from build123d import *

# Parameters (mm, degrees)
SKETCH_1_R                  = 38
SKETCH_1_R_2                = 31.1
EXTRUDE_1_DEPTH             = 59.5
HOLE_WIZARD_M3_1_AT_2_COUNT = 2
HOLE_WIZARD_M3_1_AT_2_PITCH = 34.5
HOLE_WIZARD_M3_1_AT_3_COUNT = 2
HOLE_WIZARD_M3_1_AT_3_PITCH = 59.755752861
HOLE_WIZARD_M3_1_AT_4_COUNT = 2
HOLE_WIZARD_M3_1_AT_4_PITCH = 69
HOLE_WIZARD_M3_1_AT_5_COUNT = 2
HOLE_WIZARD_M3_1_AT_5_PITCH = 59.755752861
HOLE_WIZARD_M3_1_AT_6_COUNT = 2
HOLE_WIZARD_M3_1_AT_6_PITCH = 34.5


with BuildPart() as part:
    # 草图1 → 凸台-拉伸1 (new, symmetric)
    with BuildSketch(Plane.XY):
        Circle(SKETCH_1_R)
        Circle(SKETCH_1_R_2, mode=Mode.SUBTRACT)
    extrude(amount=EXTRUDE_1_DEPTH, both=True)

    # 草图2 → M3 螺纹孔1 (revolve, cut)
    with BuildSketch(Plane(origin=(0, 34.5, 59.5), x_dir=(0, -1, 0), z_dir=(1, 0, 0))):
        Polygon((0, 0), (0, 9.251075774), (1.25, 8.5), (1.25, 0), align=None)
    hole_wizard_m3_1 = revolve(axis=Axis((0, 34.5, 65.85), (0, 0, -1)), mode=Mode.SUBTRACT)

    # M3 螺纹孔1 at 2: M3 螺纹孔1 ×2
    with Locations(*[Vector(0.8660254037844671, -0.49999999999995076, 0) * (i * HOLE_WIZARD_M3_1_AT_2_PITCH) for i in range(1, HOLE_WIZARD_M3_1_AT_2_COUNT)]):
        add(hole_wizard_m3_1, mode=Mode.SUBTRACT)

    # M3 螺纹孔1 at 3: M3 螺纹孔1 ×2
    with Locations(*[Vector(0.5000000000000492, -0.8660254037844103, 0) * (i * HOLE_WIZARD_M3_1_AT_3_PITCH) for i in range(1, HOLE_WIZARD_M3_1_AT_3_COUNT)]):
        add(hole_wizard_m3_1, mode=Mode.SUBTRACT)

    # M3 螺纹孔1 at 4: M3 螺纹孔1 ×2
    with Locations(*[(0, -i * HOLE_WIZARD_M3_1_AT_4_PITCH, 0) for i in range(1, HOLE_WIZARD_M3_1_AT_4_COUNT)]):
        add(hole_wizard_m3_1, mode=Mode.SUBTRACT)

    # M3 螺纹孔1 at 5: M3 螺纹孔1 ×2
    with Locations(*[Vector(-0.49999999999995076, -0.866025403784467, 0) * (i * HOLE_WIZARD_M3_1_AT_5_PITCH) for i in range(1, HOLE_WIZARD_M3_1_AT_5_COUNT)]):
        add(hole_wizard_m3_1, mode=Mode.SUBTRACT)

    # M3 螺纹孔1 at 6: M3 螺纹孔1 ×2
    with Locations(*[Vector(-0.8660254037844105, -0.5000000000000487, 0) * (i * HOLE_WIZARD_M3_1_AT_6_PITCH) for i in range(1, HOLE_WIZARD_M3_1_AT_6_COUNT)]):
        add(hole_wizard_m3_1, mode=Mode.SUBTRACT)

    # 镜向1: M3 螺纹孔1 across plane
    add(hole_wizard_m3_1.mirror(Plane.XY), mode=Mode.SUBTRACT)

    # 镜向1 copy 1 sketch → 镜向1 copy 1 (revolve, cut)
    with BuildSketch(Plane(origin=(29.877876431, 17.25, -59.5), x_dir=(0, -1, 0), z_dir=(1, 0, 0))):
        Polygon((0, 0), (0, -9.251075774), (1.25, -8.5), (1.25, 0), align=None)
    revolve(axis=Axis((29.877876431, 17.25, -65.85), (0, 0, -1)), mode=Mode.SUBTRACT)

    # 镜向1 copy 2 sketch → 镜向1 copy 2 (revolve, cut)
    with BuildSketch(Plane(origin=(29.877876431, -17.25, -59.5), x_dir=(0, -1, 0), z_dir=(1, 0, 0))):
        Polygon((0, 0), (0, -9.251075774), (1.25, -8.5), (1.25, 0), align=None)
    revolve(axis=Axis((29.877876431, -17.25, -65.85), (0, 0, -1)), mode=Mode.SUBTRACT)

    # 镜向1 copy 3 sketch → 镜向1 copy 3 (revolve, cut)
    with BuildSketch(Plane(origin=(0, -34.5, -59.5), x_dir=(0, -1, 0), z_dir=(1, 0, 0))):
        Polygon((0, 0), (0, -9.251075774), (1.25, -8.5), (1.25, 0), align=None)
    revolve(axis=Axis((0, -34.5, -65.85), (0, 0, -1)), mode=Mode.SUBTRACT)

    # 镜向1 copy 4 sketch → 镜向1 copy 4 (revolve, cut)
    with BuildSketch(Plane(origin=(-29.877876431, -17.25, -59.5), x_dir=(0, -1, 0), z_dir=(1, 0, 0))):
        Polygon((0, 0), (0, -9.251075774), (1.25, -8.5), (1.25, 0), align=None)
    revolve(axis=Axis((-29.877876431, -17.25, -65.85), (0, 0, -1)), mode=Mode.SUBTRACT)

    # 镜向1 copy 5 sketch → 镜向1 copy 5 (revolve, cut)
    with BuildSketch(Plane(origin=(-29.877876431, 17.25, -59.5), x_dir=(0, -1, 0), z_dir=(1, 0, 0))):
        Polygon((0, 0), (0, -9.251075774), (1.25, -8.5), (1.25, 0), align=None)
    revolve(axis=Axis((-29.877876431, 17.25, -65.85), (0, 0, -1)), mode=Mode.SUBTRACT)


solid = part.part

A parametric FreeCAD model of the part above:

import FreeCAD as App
import Part
import Sketcher

V = App.Vector
Q = App.Units.Quantity


def add_polygon(sketch, points):
    """Adds a closed chain of lines whose ends are joined by coincident constraints."""
    first, n = sketch.GeometryCount, len(points)
    for a, b in zip(points, points[1:] + points[:1]):
        sketch.addGeometry(Part.LineSegment(App.Vector(*a, 0), App.Vector(*b, 0)), False)
    for i in range(n):
        sketch.addConstraint(Sketcher.Constraint("Coincident", first + i, 2, first + (i + 1) % n, 1))

doc = App.newDocument("Part")
body = doc.addObject("PartDesign::Body", "Body")

sketch1 = body.newObject("Sketcher::SketchObject", "Sketch")
sketch1.AttachmentSupport = (doc.getObject("XY_Plane"), [""])
sketch1.MapMode = "FlatFace"
sketch1.addGeometry([
    Part.Circle(V(0, 0, 0), V(0, 0, 1), 38),
    Part.Circle(V(0, 0, 0), V(0, 0, 1), 31),
], False)
sketch1.addConstraint([
    Sketcher.Constraint("Coincident", 0, 3, -1, 1),
    Sketcher.Constraint("Coincident", 1, 3, -1, 1),
    Sketcher.Constraint("Diameter", 0, Q("76 mm")),
    Sketcher.Constraint("Diameter", 1, Q("62.2 mm")),
])
pad1 = body.newObject("PartDesign::Pad", "Pad")
pad1.Profile = sketch1
pad1.Length = 119
pad1.Midplane = True

sketch2 = body.newObject("Sketcher::SketchObject", "Sketch001")
sketch2.AttachmentSupport = (doc.getObject("YZ_Plane"), [""])
sketch2.MapMode = "FlatFace"
add_polygon(sketch2, [(34.5, 50.2), (34.5, 59.5), (33.2, 59.5), (33.2, 51)])
sketch2.addGeometry(Part.LineSegment(V(34.5, 59.5, 0), V(34.5, 50.2, 0)), True)
sketch2.addConstraint([
    Sketcher.Constraint("Vertical", 0),
    Sketcher.Constraint("Horizontal", 1),
    Sketcher.Constraint("Vertical", 2),
    Sketcher.Constraint("Vertical", 4),
    Sketcher.Constraint("Coincident", 4, 1, 0, 2),
    Sketcher.Constraint("Equal", 0, 4),
    Sketcher.Constraint("Angle", 3, Q("-31 deg")),
    Sketcher.Constraint("DistanceY", 2, 2, 2, 1, Q("8.5 mm")),
    Sketcher.Constraint("DistanceY", -1, 1, 2, 2, Q("51 mm")),
    Sketcher.Constraint("DistanceX", 1, 2, 1, 1, Q("1.25 mm")),
    Sketcher.Constraint("DistanceX", -1, 1, 0, 2, Q("34.5 mm")),
])
groove = body.newObject("PartDesign::Groove", "Groove")
groove.Profile = sketch2
groove.ReferenceAxis = (sketch2, ["Axis0"])
groove.Angle = 360
doc.recompute()

datumline = body.newObject("PartDesign::Line", "DatumLine")
datumline.Placement = App.Placement(V(0, 0, 0), App.Rotation(V(0, 0, 1), V(0.866025404, -0.5, 0)))
linearpattern = body.newObject("PartDesign::LinearPattern", "LinearPattern")
linearpattern.Originals = [groove]
linearpattern.Direction = (datumline, [""])
linearpattern.Mode = "offset"
linearpattern.Offset = 34.5
linearpattern.Occurrences = 2
body.Tip = linearpattern
doc.recompute()

datumline2 = body.newObject("PartDesign::Line", "DatumLine001")
datumline2.Placement = App.Placement(V(0, 0, 0), App.Rotation(V(0, 0, 1), V(0.5, -0.866025404, 0)))
linearpattern2 = body.newObject("PartDesign::LinearPattern", "LinearPattern001")
linearpattern2.Originals = [groove]
linearpattern2.Direction = (datumline2, [""])
linearpattern2.Mode = "offset"
linearpattern2.Offset = 59.755753
linearpattern2.Occurrences = 2
body.Tip = linearpattern2
doc.recompute()

linearpattern3 = body.newObject("PartDesign::LinearPattern", "LinearPattern002")
linearpattern3.Originals = [groove]
linearpattern3.Direction = (doc.getObject("Y_Axis"), [""])
linearpattern3.Mode = "offset"
linearpattern3.Offset = 69
linearpattern3.Occurrences = 2
linearpattern3.Reversed = True
body.Tip = linearpattern3
doc.recompute()

datumline3 = body.newObject("PartDesign::Line", "DatumLine002")
datumline3.Placement = App.Placement(V(0, 0, 0), App.Rotation(V(0, 0, 1), V(-0.5, -0.866025404, 0)))
linearpattern4 = body.newObject("PartDesign::LinearPattern", "LinearPattern003")
linearpattern4.Originals = [groove]
linearpattern4.Direction = (datumline3, [""])
linearpattern4.Mode = "offset"
linearpattern4.Offset = 59.755753
linearpattern4.Occurrences = 2
body.Tip = linearpattern4
doc.recompute()

datumline4 = body.newObject("PartDesign::Line", "DatumLine003")
datumline4.Placement = App.Placement(V(0, 0, 0), App.Rotation(V(0, 0, 1), V(-0.866025404, -0.5, 0)))
linearpattern5 = body.newObject("PartDesign::LinearPattern", "LinearPattern004")
linearpattern5.Originals = [groove]
linearpattern5.Direction = (datumline4, [""])
linearpattern5.Mode = "offset"
linearpattern5.Offset = 34.5
linearpattern5.Occurrences = 2
body.Tip = linearpattern5
doc.recompute()

mirrored = body.newObject("PartDesign::Mirrored", "Mirrored")
mirrored.Originals = [groove]
mirrored.MirrorPlane = (doc.getObject("XY_Plane"), [""])
body.Tip = mirrored

sketch3 = body.newObject("Sketcher::SketchObject", "Sketch002")
sketch3.AttachmentSupport = (doc.getObject("YZ_Plane"), [""])
sketch3.MapMode = "FlatFace"
sketch3.AttachmentOffset = App.Placement(V(0, 0, 29.877876), App.Rotation())
add_polygon(sketch3, [(17.2, -59.5), (17.2, -50.2), (16, -51), (16, -59.5)])
sketch3.addGeometry(Part.LineSegment(V(17.2, -50.2, 0), V(17.2, -59.5, 0)), True)
sketch3.addConstraint([
    Sketcher.Constraint("Vertical", 0),
    Sketcher.Constraint("Vertical", 2),
    Sketcher.Constraint("Horizontal", 3),
    Sketcher.Constraint("Vertical", 4),
    Sketcher.Constraint("Coincident", 4, 1, 0, 2),
    Sketcher.Constraint("Horizontal", 2, 2, 4, 2),
    Sketcher.Constraint("Angle", 1, Q("-149 deg")),
    Sketcher.Constraint("DistanceY", 2, 2, 2, 1, Q("8.5 mm")),
    Sketcher.Constraint("DistanceX", -1, 1, 1, 2, Q("16 mm")),
    Sketcher.Constraint("DistanceY", 1, 2, -1, 1, Q("51 mm")),
    Sketcher.Constraint("DistanceX", 3, 1, 3, 2, Q("1.25 mm")),
])
groove2 = body.newObject("PartDesign::Groove", "Groove001")
groove2.Profile = sketch3
groove2.ReferenceAxis = (sketch3, ["Axis0"])
groove2.Angle = 360

sketch4 = body.newObject("Sketcher::SketchObject", "Sketch003")
sketch4.AttachmentSupport = (doc.getObject("YZ_Plane"), [""])
sketch4.MapMode = "FlatFace"
sketch4.AttachmentOffset = App.Placement(V(0, 0, 29.877876), App.Rotation())
add_polygon(sketch4, [(-17.2, -59.5), (-17.2, -50.2), (-18.5, -51), (-18.5, -59.5)])
sketch4.addGeometry(Part.LineSegment(V(-17.2, -50.2, 0), V(-17.2, -59.5, 0)), True)
sketch4.addConstraint([
    Sketcher.Constraint("Vertical", 0),
    Sketcher.Constraint("Vertical", 2),
    Sketcher.Constraint("Horizontal", 3),
    Sketcher.Constraint("Vertical", 4),
    Sketcher.Constraint("Coincident", 4, 1, 0, 2),
    Sketcher.Constraint("Horizontal", 2, 2, 4, 2),
    Sketcher.Constraint("Angle", 1, Q("-149 deg")),
    Sketcher.Constraint("DistanceY", 2, 2, 2, 1, Q("8.5 mm")),
    Sketcher.Constraint("DistanceY", 1, 2, -1, 1, Q("51 mm")),
    Sketcher.Constraint("DistanceX", 3, 1, 3, 2, Q("1.25 mm")),
    Sketcher.Constraint("DistanceX", 1, 2, -1, 1, Q("18.5 mm")),
])
groove3 = body.newObject("PartDesign::Groove", "Groove002")
groove3.Profile = sketch4
groove3.ReferenceAxis = (sketch4, ["Axis0"])
groove3.Angle = 360

sketch5 = body.newObject("Sketcher::SketchObject", "Sketch004")
sketch5.AttachmentSupport = (doc.getObject("YZ_Plane"), [""])
sketch5.MapMode = "FlatFace"
add_polygon(sketch5, [(-34.5, -59.5), (-34.5, -50.2), (-35.8, -51), (-35.8, -59.5)])
sketch5.addGeometry(Part.LineSegment(V(-34.5, -50.2, 0), V(-34.5, -59.5, 0)), True)
sketch5.addConstraint([
    Sketcher.Constraint("Vertical", 0),
    Sketcher.Constraint("Vertical", 2),
    Sketcher.Constraint("Horizontal", 3),
    Sketcher.Constraint("Vertical", 4),
    Sketcher.Constraint("Coincident", 4, 1, 0, 2),
    Sketcher.Constraint("Horizontal", 2, 2, 4, 2),
    Sketcher.Constraint("Angle", 1, Q("-149 deg")),
    Sketcher.Constraint("DistanceY", 2, 2, 2, 1, Q("8.5 mm")),
    Sketcher.Constraint("DistanceY", 1, 2, -1, 1, Q("51 mm")),
    Sketcher.Constraint("DistanceX", 3, 1, 3, 2, Q("1.25 mm")),
    Sketcher.Constraint("DistanceX", 0, 2, -1, 1, Q("34.5 mm")),
])
groove4 = body.newObject("PartDesign::Groove", "Groove003")
groove4.Profile = sketch5
groove4.ReferenceAxis = (sketch5, ["Axis0"])
groove4.Angle = 360

sketch6 = body.newObject("Sketcher::SketchObject", "Sketch005")
sketch6.AttachmentSupport = (doc.getObject("YZ_Plane"), [""])
sketch6.MapMode = "FlatFace"
sketch6.AttachmentOffset = App.Placement(V(0, 0, -29.877876), App.Rotation())
add_polygon(sketch6, [(-17.2, -59.5), (-17.2, -50.2), (-18.5, -51), (-18.5, -59.5)])
sketch6.addGeometry(Part.LineSegment(V(-17.2, -50.2, 0), V(-17.2, -59.5, 0)), True)
sketch6.addConstraint([
    Sketcher.Constraint("Vertical", 0),
    Sketcher.Constraint("Vertical", 2),
    Sketcher.Constraint("Horizontal", 3),
    Sketcher.Constraint("Vertical", 4),
    Sketcher.Constraint("Coincident", 4, 1, 0, 2),
    Sketcher.Constraint("Horizontal", 2, 2, 4, 2),
    Sketcher.Constraint("Angle", 1, Q("-149 deg")),
    Sketcher.Constraint("DistanceY", 2, 2, 2, 1, Q("8.5 mm")),
    Sketcher.Constraint("DistanceY", 1, 2, -1, 1, Q("51 mm")),
    Sketcher.Constraint("DistanceX", 3, 1, 3, 2, Q("1.25 mm")),
    Sketcher.Constraint("DistanceX", 1, 2, -1, 1, Q("18.5 mm")),
])
groove5 = body.newObject("PartDesign::Groove", "Groove004")
groove5.Profile = sketch6
groove5.ReferenceAxis = (sketch6, ["Axis0"])
groove5.Angle = 360

sketch7 = body.newObject("Sketcher::SketchObject", "Sketch006")
sketch7.AttachmentSupport = (doc.getObject("YZ_Plane"), [""])
sketch7.MapMode = "FlatFace"
sketch7.AttachmentOffset = App.Placement(V(0, 0, -29.877876), App.Rotation())
add_polygon(sketch7, [(17.2, -59.5), (17.2, -50.2), (16, -51), (16, -59.5)])
sketch7.addGeometry(Part.LineSegment(V(17.2, -50.2, 0), V(17.2, -59.5, 0)), True)
sketch7.addConstraint([
    Sketcher.Constraint("Vertical", 0),
    Sketcher.Constraint("Vertical", 2),
    Sketcher.Constraint("Horizontal", 3),
    Sketcher.Constraint("Vertical", 4),
    Sketcher.Constraint("Coincident", 4, 1, 0, 2),
    Sketcher.Constraint("Horizontal", 2, 2, 4, 2),
    Sketcher.Constraint("Angle", 1, Q("-149 deg")),
    Sketcher.Constraint("DistanceY", 2, 2, 2, 1, Q("8.5 mm")),
    Sketcher.Constraint("DistanceX", -1, 1, 1, 2, Q("16 mm")),
    Sketcher.Constraint("DistanceY", 1, 2, -1, 1, Q("51 mm")),
    Sketcher.Constraint("DistanceX", 3, 1, 3, 2, Q("1.25 mm")),
])
groove6 = body.newObject("PartDesign::Groove", "Groove005")
groove6.Profile = sketch7
groove6.ReferenceAxis = (sketch7, ["Axis0"])
groove6.Angle = 360

doc.recompute()
